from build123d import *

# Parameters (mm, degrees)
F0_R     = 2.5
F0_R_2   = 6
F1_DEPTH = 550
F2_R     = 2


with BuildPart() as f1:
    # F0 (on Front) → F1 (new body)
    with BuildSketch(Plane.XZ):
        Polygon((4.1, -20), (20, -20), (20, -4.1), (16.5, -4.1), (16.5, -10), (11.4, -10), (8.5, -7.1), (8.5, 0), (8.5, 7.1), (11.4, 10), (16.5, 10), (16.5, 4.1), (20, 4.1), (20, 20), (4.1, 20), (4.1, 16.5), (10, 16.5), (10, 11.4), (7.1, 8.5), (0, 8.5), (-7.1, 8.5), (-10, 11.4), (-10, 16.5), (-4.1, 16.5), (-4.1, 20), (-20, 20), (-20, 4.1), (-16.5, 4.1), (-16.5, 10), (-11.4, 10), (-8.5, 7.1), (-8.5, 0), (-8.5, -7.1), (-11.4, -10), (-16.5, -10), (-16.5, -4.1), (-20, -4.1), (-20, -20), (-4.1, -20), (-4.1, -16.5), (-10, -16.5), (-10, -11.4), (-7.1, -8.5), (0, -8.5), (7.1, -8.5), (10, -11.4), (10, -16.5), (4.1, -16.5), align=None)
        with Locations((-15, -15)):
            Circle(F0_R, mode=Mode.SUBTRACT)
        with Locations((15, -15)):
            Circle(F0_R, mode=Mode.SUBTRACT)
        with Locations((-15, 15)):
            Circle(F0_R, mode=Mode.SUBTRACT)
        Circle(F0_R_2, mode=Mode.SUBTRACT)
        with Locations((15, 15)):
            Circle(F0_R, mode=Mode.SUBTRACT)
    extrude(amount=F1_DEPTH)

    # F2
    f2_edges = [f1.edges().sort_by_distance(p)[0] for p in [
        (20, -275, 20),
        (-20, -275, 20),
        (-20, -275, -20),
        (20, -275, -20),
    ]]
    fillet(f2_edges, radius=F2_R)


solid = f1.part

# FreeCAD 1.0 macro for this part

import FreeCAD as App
import Part
import Sketcher

V = App.Vector


def edges_at(feature, points):
    """Names of the edges that pass closest to the given points."""
    edges = feature.Shape.Edges
    near = lambda p: min(range(len(edges)), key=lambda i: edges[i].distToShape(Part.Vertex(*p))[0])
    return sorted({f"Edge{near(p) + 1}" for p in points})


def add_polygon(sketch, points):
    """Adds a closed chain of lines whose ends are joined by coincident constraints."""
    first, n = sketch.GeometryCount, len(points)
    for a, b in zip(points, points[1:] + points[:1]):
        sketch.addGeometry(Part.LineSegment(App.Vector(*a, 0), App.Vector(*b, 0)), False)
    for i in range(n):
        sketch.addConstraint(Sketcher.Constraint("Coincident", first + i, 2, first + (i + 1) % n, 1))

doc = App.newDocument("Part")
params = doc.addObject("Spreadsheet::Sheet", "Params")
for row, (alias, value) in enumerate([
    ("sketch1_diameter", "5 mm"),
    ("sketch1_diameter2", "12 mm"),
    ("sketch1_width", "15.9 mm"),
    ("sketch1_width2", "3.5 mm"),
    ("sketch1_width3", "5.1 mm"),
    ("pad1_length", "550 mm"),
    ("fillet_radius", "2 mm"),
], start=1):
    params.set(f"A{row}", alias)
    params.set(f"B{row}", "=" + value)
    params.setAlias(f"B{row}", alias)

body = doc.addObject("PartDesign::Body", "Body")

# Sketch on XZ plane
sketch1 = doc.addObject("Sketcher::SketchObject", "Sketch")
body.addObject(sketch1)
sketch1.AttachmentSupport = (doc.XZ_Plane, [""])
sketch1.MapMode = "FlatFace"
add_polygon(sketch1, [(4.1, -20), (20, -20), (20, -4.1), (16.5, -4.1), (16.5, -10), (11.4, -10), (8.5, -7.1), (8.5, 7.1), (11.4, 10), (16.5, 10), (16.5, 4.1), (20, 4.1), (20, 20), (4.1, 20), (4.1, 16.5), (10, 16.5), (10, 11.4), (7.1, 8.5), (-7.1, 8.5), (-10, 11.4), (-10, 16.5), (-4.1, 16.5), (-4.1, 20), (-20, 20), (-20, 4.1), (-16.5, 4.1), (-16.5, 10), (-11.4, 10), (-8.5, 7.1), (-8.5, -7.1), (-11.4, -10), (-16.5, -10), (-16.5, -4.1), (-20, -4.1), (-20, -20), (-4.1, -20), (-4.1, -16.5), (-10, -16.5), (-10, -11.4), (-7.1, -8.5), (7.1, -8.5), (10, -11.4), (10, -16.5), (4.1, -16.5)])  # lines 0-43
sketch1.addGeometry(Part.Circle(V(-15, -15, 0), V(0, 0, 1), 2.5), False)  # 44
sketch1.addGeometry(Part.Circle(V(15, -15, 0), V(0, 0, 1), 2.5), False)  # 45
sketch1.addGeometry(Part.Circle(V(-15, 15, 0), V(0, 0, 1), 2.5), False)  # 46
sketch1.addGeometry(Part.Circle(V(0, 0, 0), V(0, 0, 1), 6), False)  # 47
sketch1.addGeometry(Part.Circle(V(15, 15, 0), V(0, 0, 1), 2.5), False)  # 48
sketch1.addConstraint([
    Sketcher.Constraint("Horizontal", 0),
    Sketcher.Constraint("Vertical", 1),
    Sketcher.Constraint("Horizontal", 2),
    Sketcher.Constraint("Vertical", 3),
    Sketcher.Constraint("Horizontal", 4),
    Sketcher.Constraint("Vertical", 6),
    Sketcher.Constraint("Horizontal", 8),
    Sketcher.Constraint("Vertical", 9),
    Sketcher.Constraint("Horizontal", 10),
    Sketcher.Constraint("Vertical", 11),
    Sketcher.Constraint("Horizontal", 12),
    Sketcher.Constraint("Vertical", 13),
    Sketcher.Constraint("Horizontal", 14),
    Sketcher.Constraint("Vertical", 15),
    Sketcher.Constraint("Horizontal", 17),
    Sketcher.Constraint("Vertical", 19),
    Sketcher.Constraint("Horizontal", 20),
    Sketcher.Constraint("Vertical", 21),
    Sketcher.Constraint("Horizontal", 22),
    Sketcher.Constraint("Vertical", 23),
    Sketcher.Constraint("Horizontal", 24),
    Sketcher.Constraint("Vertical", 25),
    Sketcher.Constraint("Horizontal", 26),
    Sketcher.Constraint("Vertical", 28),
    Sketcher.Constraint("Horizontal", 30),
    Sketcher.Constraint("Vertical", 31),
    Sketcher.Constraint("Horizontal", 32),
    Sketcher.Constraint("Vertical", 33),
    Sketcher.Constraint("Horizontal", 34),
    Sketcher.Constraint("Vertical", 35),
    Sketcher.Constraint("Horizontal", 36),
    Sketcher.Constraint("Vertical", 37),
    Sketcher.Constraint("Horizontal", 39),
    Sketcher.Constraint("Vertical", 41),
    Sketcher.Constraint("Horizontal", 42),
    Sketcher.Constraint("Vertical", 43),
    Sketcher.Constraint("Coincident", 47, 3, -1, 1),
    Sketcher.Constraint("Equal", 44, 45),
    Sketcher.Constraint("Equal", 45, 46),
    Sketcher.Constraint("Equal", 46, 48),
    Sketcher.Constraint("Symmetric", 45, 3, 46, 3, -1, 1),
    Sketcher.Constraint("Symmetric", 44, 3, 48, 3, -1, 1),
    Sketcher.Constraint("Symmetric", 0, 2, 22, 2, -1, 1),
    Sketcher.Constraint("Symmetric", 2, 2, 24, 2, -1, 1),
    Sketcher.Constraint("Symmetric", 4, 2, 26, 2, -1, 1),
    Sketcher.Constraint("Symmetric", 5, 2, 27, 2, -1, 1),
    Sketcher.Constraint("Symmetric", 7, 2, 29, 2, -1, 1),
    Sketcher.Constraint("Symmetric", 9, 2, 31, 2, -1, 1),
    Sketcher.Constraint("Symmetric", 11, 2, 33, 2, -1, 1),
    Sketcher.Constraint("Symmetric", 13, 2, 35, 2, -1, 1),
    Sketcher.Constraint("Symmetric", 15, 2, 37, 2, -1, 1),
    Sketcher.Constraint("Symmetric", 16, 2, 38, 2, -1, 1),
    Sketcher.Constraint("Symmetric", 18, 2, 40, 2, -1, 1),
    Sketcher.Constraint("Symmetric", 20, 2, 42, 2, -1, 1),
    Sketcher.Constraint("Symmetric", 44, 3, 45, 3, -2),
    Sketcher.Constraint("Symmetric", 15, 2, 18, 2, -2),
    Sketcher.Constraint("Symmetric", 13, 2, 20, 2, -2),
    Sketcher.Constraint("Symmetric", 11, 2, 22, 2, -2),
    Sketcher.Constraint("Symmetric", 9, 2, 24, 2, -2),
    Sketcher.Constraint("Symmetric", 7, 2, 26, 2, -2),
    Sketcher.Constraint("Perpendicular", 5, 7),
    Sketcher.Constraint("Parallel", 7, 16),
    Sketcher.Constraint("Perpendicular", 16, 18),
    Sketcher.Constraint("Perpendicular", 27, 29),
    Sketcher.Constraint("Perpendicular", 38, 40),
    Sketcher.Constraint("Horizontal", 6, 2, 27, 2),
    Sketcher.Constraint("Equal", 34, 1),
    Sketcher.Constraint("Equal", 42, 3),
    Sketcher.Constraint("Equal", 39, 6),
    Sketcher.Constraint("Equal", 32, 13),
    Sketcher.Constraint("Equal", 30, 15),
    Sketcher.Constraint("Equal", 7, 16),
    Sketcher.Constraint("Diameter", 44, 5.0),
    Sketcher.Constraint("Diameter", 47, 12.0),
    Sketcher.Constraint("DistanceX", 0, 1, 0, 2, 15.9),
    Sketcher.Constraint("DistanceX", 2, 2, 2, 1, 3.5),
    Sketcher.Constraint("DistanceX", 4, 2, 4, 1, 5.1),
    Sketcher.Constraint("DistanceX", 14, 1, 14, 2, 5.9),
    Sketcher.Constraint("DistanceX", 17, 2, 17, 1, 14.2),
    Sketcher.Constraint("DistanceX", 44, 3, -1, 1, 15.0),
    Sketcher.Constraint("DistanceY", 44, 3, -1, 1, 15.0),
    Sketcher.Constraint("DistanceX", -1, 1, 0, 2, 20.0),
])
sketch1.setExpression("Constraints[116]", "Params.sketch1_diameter")
sketch1.setExpression("Constraints[117]", "Params.sketch1_diameter2")
sketch1.setExpression("Constraints[118]", "Params.sketch1_width")
sketch1.setExpression("Constraints[119]", "Params.sketch1_width2")
sketch1.setExpression("Constraints[120]", "Params.sketch1_width3")
pad1 = doc.addObject("PartDesign::Pad", "Pad")
body.addObject(pad1)
pad1.Profile = sketch1
pad1.setExpression("Length", "Params.pad1_length")
doc.recompute()

fillet = doc.addObject("PartDesign::Fillet", "Fillet")
body.addObject(fillet)
fillet.Base = (pad1, edges_at(pad1, [
    (20, -275, 20),
    (-20, -275, 20),
    (-20, -275, -20),
    (20, -275, -20),
]))
fillet.setExpression("Radius", "Params.fillet_radius")

doc.recompute()
